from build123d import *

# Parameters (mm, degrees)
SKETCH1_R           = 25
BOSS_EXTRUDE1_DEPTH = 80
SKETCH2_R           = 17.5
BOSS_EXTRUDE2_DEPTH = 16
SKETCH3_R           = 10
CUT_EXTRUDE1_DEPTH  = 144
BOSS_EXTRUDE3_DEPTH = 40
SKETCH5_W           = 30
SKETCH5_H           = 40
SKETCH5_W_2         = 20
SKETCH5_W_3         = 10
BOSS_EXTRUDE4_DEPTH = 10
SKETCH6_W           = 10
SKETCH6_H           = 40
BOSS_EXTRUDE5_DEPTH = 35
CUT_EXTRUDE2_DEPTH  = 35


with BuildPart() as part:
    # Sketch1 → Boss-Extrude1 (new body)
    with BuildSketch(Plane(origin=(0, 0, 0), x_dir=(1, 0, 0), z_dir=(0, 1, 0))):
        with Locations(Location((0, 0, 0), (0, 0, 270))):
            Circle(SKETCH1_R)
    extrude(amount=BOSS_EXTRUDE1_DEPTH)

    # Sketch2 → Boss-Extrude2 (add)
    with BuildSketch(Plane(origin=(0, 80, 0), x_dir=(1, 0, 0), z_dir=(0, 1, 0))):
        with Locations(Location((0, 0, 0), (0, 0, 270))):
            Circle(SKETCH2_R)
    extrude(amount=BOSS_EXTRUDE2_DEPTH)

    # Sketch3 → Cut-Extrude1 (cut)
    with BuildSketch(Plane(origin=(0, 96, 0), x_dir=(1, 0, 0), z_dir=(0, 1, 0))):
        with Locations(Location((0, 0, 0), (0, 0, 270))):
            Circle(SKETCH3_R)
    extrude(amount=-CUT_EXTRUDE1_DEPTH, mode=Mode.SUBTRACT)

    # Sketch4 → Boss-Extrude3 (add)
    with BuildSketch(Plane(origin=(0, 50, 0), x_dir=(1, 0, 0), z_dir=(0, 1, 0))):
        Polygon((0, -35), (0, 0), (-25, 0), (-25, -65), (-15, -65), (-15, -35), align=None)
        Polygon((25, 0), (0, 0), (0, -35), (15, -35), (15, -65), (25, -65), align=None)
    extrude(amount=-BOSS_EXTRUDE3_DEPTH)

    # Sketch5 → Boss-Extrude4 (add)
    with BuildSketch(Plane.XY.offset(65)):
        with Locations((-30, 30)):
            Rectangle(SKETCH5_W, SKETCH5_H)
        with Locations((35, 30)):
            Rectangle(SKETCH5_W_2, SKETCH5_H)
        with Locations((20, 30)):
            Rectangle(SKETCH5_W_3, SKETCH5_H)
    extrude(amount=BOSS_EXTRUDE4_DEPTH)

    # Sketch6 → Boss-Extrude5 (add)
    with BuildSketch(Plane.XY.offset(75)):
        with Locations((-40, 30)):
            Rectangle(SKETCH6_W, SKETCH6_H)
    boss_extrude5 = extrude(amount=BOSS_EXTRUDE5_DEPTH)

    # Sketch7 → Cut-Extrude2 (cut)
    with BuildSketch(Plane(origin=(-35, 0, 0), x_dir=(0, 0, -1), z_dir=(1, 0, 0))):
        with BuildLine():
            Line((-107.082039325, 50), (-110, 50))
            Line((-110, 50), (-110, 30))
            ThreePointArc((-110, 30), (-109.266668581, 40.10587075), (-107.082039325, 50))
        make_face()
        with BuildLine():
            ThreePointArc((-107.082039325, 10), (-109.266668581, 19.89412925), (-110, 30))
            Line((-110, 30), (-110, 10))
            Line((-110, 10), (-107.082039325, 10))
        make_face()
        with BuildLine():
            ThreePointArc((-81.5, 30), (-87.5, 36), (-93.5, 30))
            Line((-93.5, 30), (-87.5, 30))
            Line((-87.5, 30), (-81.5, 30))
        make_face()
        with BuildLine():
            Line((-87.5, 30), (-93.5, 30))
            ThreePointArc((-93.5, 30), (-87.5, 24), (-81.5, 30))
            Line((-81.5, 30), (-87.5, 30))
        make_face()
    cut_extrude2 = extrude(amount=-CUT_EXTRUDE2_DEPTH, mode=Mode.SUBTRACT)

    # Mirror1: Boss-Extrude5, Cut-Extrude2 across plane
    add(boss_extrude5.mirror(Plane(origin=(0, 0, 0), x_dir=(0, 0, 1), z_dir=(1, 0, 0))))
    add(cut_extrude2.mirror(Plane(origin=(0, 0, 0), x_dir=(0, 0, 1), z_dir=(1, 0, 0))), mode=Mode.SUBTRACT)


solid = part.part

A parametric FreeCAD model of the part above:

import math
import FreeCAD as App
import Part
import Sketcher

V = App.Vector
Q = App.Units.Quantity

doc = App.newDocument("Part")
body = doc.addObject("PartDesign::Body", "Body")

# Sketch on XZ plane
sketch1 = doc.addObject("Sketcher::SketchObject", "Sketch")
body.addObject(sketch1)
sketch1.AttachmentSupport = (doc.XZ_Plane, [""])
sketch1.MapMode = "FlatFace"
sketch1.addGeometry(Part.Circle(V(0, 0, 0), V(0, 0, 1), 25), False)
sketch1.addConstraint([
    Sketcher.Constraint("Coincident", 0, 3, -1, 1),
    Sketcher.Constraint("Diameter", 0, Q("50 mm")),
])
pad1 = doc.addObject("PartDesign::Pad", "Pad")
body.addObject(pad1)
pad1.Profile = sketch1
pad1.Length = 80
pad1.Reversed = True

# Sketch on XZ plane
sketch2 = doc.addObject("Sketcher::SketchObject", "Sketch001")
body.addObject(sketch2)
sketch2.AttachmentSupport = (doc.XZ_Plane, [""])
sketch2.MapMode = "FlatFace"
sketch2.AttachmentOffset = App.Placement(V(0, 0, -80), App.Rotation())
sketch2.addGeometry(Part.Circle(V(0, 0, 0), V(0, 0, 1), 18), False)
sketch2.addConstraint([
    Sketcher.Constraint("Coincident", 0, 3, -1, 1),
    Sketcher.Constraint("Diameter", 0, Q("35 mm")),
])
pad2 = doc.addObject("PartDesign::Pad", "Pad001")
body.addObject(pad2)
pad2.Profile = sketch2
pad2.Length = 16
pad2.Reversed = True

# Sketch on XZ plane
sketch3 = doc.addObject("Sketcher::SketchObject", "Sketch002")
body.addObject(sketch3)
sketch3.AttachmentSupport = (doc.XZ_Plane, [""])
sketch3.MapMode = "FlatFace"
sketch3.AttachmentOffset = App.Placement(V(0, 0, -96), App.Rotation())
sketch3.addGeometry(Part.Circle(V(0, 0, 0), V(0, 0, 1), 10), False)
sketch3.addConstraint([
    Sketcher.Constraint("Coincident", 0, 3, -1, 1),
    Sketcher.Constraint("Diameter", 0, Q("20 mm")),
])
pocket1 = doc.addObject("PartDesign::Pocket", "Pocket")
body.addObject(pocket1)
pocket1.Profile = sketch3
pocket1.Length = 144
pocket1.Reversed = True

# Sketch on XZ plane
sketch4 = doc.addObject("Sketcher::SketchObject", "Sketch003")
body.addObject(sketch4)
sketch4.AttachmentSupport = (doc.XZ_Plane, [""])
sketch4.MapMode = "FlatFace"
sketch4.AttachmentOffset = App.Placement(V(0, 0, -50), App.Rotation())
sketch4.addGeometry([
    Part.LineSegment(V(-25, 0, 0), V(-25, 65, 0)),  # 0
    Part.LineSegment(V(-25, 65, 0), V(-15, 65, 0)),  # 1
    Part.LineSegment(V(-15, 65, 0), V(-15, 35, 0)),  # 2
    Part.LineSegment(V(-15, 35, 0), V(15, 35, 0)),  # 3
    Part.LineSegment(V(15, 35, 0), V(15, 65, 0)),  # 4
    Part.LineSegment(V(15, 65, 0), V(25, 65, 0)),  # 5
    Part.LineSegment(V(25, 65, 0), V(25, 0, 0)),  # 6
    Part.LineSegment(V(25, 0, 0), V(-25, 0, 0)),  # 7
], False)
sketch4.addConstraint([
    Sketcher.Constraint("Coincident", 0, 2, 1, 1),
    Sketcher.Constraint("Coincident", 1, 2, 2, 1),
    Sketcher.Constraint("Coincident", 2, 2, 3, 1),
    Sketcher.Constraint("Coincident", 3, 2, 4, 1),
    Sketcher.Constraint("Coincident", 4, 2, 5, 1),
    Sketcher.Constraint("Coincident", 5, 2, 6, 1),
    Sketcher.Constraint("Coincident", 6, 2, 7, 1),
    Sketcher.Constraint("Coincident", 7, 2, 0, 1),
    Sketcher.Constraint("Vertical", 0),
    Sketcher.Constraint("Horizontal", 1),
    Sketcher.Constraint("Vertical", 2),
    Sketcher.Constraint("Horizontal", 3),
    Sketcher.Constraint("Vertical", 4),
    Sketcher.Constraint("Horizontal", 5),
    Sketcher.Constraint("Vertical", 6),
    Sketcher.Constraint("Horizontal", 7),
    Sketcher.Constraint("Symmetric", 6, 2, 7, 2, -1, 1),
    Sketcher.Constraint("Symmetric", 1, 2, 4, 2, -2),
    Sketcher.Constraint("Equal", 3, 2),
    Sketcher.Constraint("DistanceX", 1, 1, 1, 2, Q("10 mm")),
    Sketcher.Constraint("DistanceX", 3, 1, 3, 2, Q("30 mm")),
    Sketcher.Constraint("DistanceY", 0, 1, 0, 2, Q("65 mm")),
])
pad3 = doc.addObject("PartDesign::Pad", "Pad002")
body.addObject(pad3)
pad3.Profile = sketch4
pad3.Length = 40

# Sketch on XY plane
sketch5 = doc.addObject("Sketcher::SketchObject", "Sketch004")
body.addObject(sketch5)
sketch5.AttachmentSupport = (doc.XY_Plane, [""])
sketch5.MapMode = "FlatFace"
sketch5.AttachmentOffset = App.Placement(V(0, 0, 65), App.Rotation())
sketch5.addGeometry([
    Part.LineSegment(V(-45, 50, 0), V(-45, 10, 0)),  # 0
    Part.LineSegment(V(-45, 10, 0), V(-15, 10, 0)),  # 1
    Part.LineSegment(V(-15, 10, 0), V(-15, 50, 0)),  # 2
    Part.LineSegment(V(-15, 50, 0), V(-45, 50, 0)),  # 3
    Part.LineSegment(V(45, 10, 0), V(45, 50, 0)),  # 4
    Part.LineSegment(V(45, 50, 0), V(15, 50, 0)),  # 5
    Part.LineSegment(V(15, 50, 0), V(15, 10, 0)),  # 6
    Part.LineSegment(V(15, 10, 0), V(45, 10, 0)),  # 7
], False)
sketch5.addConstraint([
    Sketcher.Constraint("Coincident", 0, 2, 1, 1),
    Sketcher.Constraint("Coincident", 1, 2, 2, 1),
    Sketcher.Constraint("Coincident", 2, 2, 3, 1),
    Sketcher.Constraint("Coincident", 3, 2, 0, 1),
    Sketcher.Constraint("Coincident", 4, 2, 5, 1),
    Sketcher.Constraint("Coincident", 5, 2, 6, 1),
    Sketcher.Constraint("Coincident", 6, 2, 7, 1),
    Sketcher.Constraint("Coincident", 7, 2, 4, 1),
    Sketcher.Constraint("Vertical", 0),
    Sketcher.Constraint("Horizontal", 1),
    Sketcher.Constraint("Vertical", 2),
    Sketcher.Constraint("Horizontal", 3),
    Sketcher.Constraint("Vertical", 4),
    Sketcher.Constraint("Horizontal", 5),
    Sketcher.Constraint("Vertical", 6),
    Sketcher.Constraint("Horizontal", 7),
    Sketcher.Constraint("Symmetric", 3, 2, 4, 2, -2),
    Sketcher.Constraint("Symmetric", 1, 2, 6, 2, -2),
    Sketcher.Constraint("DistanceX", 1, 1, 1, 2, Q("30 mm")),
    Sketcher.Constraint("DistanceY", 0, 2, 0, 1, Q("40 mm")),
    Sketcher.Constraint("DistanceX", 0, 2, -1, 1, Q("45 mm")),
    Sketcher.Constraint("DistanceY", -1, 1, 0, 2, Q("10 mm")),
])
pad4 = doc.addObject("PartDesign::Pad", "Pad003")
body.addObject(pad4)
pad4.Profile = sketch5
pad4.Length = 10

# Sketch on XY plane
sketch6 = doc.addObject("Sketcher::SketchObject", "Sketch005")
body.addObject(sketch6)
sketch6.AttachmentSupport = (doc.XY_Plane, [""])
sketch6.MapMode = "FlatFace"
sketch6.AttachmentOffset = App.Placement(V(0, 0, 75), App.Rotation())
sketch6.addGeometry([
    Part.LineSegment(V(-45, 50, 0), V(-45, 10, 0)),
    Part.LineSegment(V(-45, 10, 0), V(-35, 10, 0)),
    Part.LineSegment(V(-35, 10, 0), V(-35, 50, 0)),
    Part.LineSegment(V(-35, 50, 0), V(-45, 50, 0)),
], False)
sketch6.addConstraint([
    Sketcher.Constraint("Coincident", 0, 2, 1, 1),
    Sketcher.Constraint("Coincident", 1, 2, 2, 1),
    Sketcher.Constraint("Coincident", 2, 2, 3, 1),
    Sketcher.Constraint("Coincident", 3, 2, 0, 1),
    Sketcher.Constraint("Vertical", 0),
    Sketcher.Constraint("Horizontal", 1),
    Sketcher.Constraint("Vertical", 2),
    Sketcher.Constraint("Horizontal", 3),
    Sketcher.Constraint("DistanceX", 1, 1, 1, 2, Q("10 mm")),
    Sketcher.Constraint("DistanceY", 0, 2, 0, 1, Q("40 mm")),
    Sketcher.Constraint("DistanceX", 0, 2, -1, 1, Q("45 mm")),
    Sketcher.Constraint("DistanceY", -1, 1, 0, 2, Q("10 mm")),
])
pad5 = doc.addObject("PartDesign::Pad", "Pad004")
body.addObject(pad5)
pad5.Profile = sketch6
pad5.Length = 35

# Sketch on YZ plane
sketch7 = doc.addObject("Sketcher::SketchObject", "Sketch006")
body.addObject(sketch7)
sketch7.AttachmentSupport = (doc.YZ_Plane, [""])
sketch7.MapMode = "FlatFace"
sketch7.AttachmentOffset = App.Placement(V(0, 0, -35), App.Rotation())
sketch7.addGeometry([
    Part.LineSegment(V(50, 107.1, 0), V(50, 110, 0)),  # 0
    Part.LineSegment(V(50, 110, 0), V(30, 110, 0)),  # 1
    Part.ArcOfCircle(Part.Circle(V(30, 40, 0), V(0, 0, 1), 70), math.radians(73.4), math.radians(90)),  # 2
    Part.ArcOfCircle(Part.Circle(V(30, 40, 0), V(0, 0, 1), 70), math.radians(90), math.radians(106.6)),  # 3
    Part.LineSegment(V(30, 110, 0), V(10, 110, 0)),  # 4
    Part.LineSegment(V(10, 110, 0), V(10, 107.1, 0)),  # 5
    Part.Circle(V(30, 87.5, 0), V(0, 0, 1), 6),  # 6
], False)
sketch7.addConstraint([
    Sketcher.Constraint("Coincident", 0, 2, 1, 1),
    Sketcher.Constraint("Tangent", 1, 2, 2, 2),
    Sketcher.Constraint("Coincident", 2, 1, 0, 1),
    Sketcher.Constraint("Tangent", 3, 1, 4, 1),
    Sketcher.Constraint("Coincident", 4, 2, 5, 1),
    Sketcher.Constraint("Coincident", 5, 2, 3, 2),
    Sketcher.Constraint("Vertical", 0),
    Sketcher.Constraint("Horizontal", 1),
    Sketcher.Constraint("Horizontal", 4),
    Sketcher.Constraint("Vertical", 5),
    Sketcher.Constraint("Coincident", 3, 3, 2, 3),
    Sketcher.Constraint("Equal", 2, 3),
    Sketcher.Constraint("Horizontal", 2, 1, 5, 2),
    Sketcher.Constraint("Vertical", 3, 3, 6, 3),
    Sketcher.Constraint("Diameter", 6, Q("12 mm")),
    Sketcher.Constraint("Radius", 2, Q("70 mm")),
    Sketcher.Constraint("DistanceX", 1, 2, 1, 1, Q("20 mm")),
    Sketcher.Constraint("DistanceX", -1, 1, 2, 3, Q("30 mm")),
    Sketcher.Constraint("DistanceY", -1, 1, 2, 3, Q("40 mm")),
    Sketcher.Constraint("DistanceY", -1, 1, 6, 3, Q("87.5 mm")),
])
pocket2 = doc.addObject("PartDesign::Pocket", "Pocket001")
body.addObject(pocket2)
pocket2.Profile = sketch7
pocket2.Length = 35
doc.recompute()

mirrored = doc.addObject("PartDesign::Mirrored", "Mirrored")
body.addObject(mirrored)
mirrored.Originals = [pad5, pocket2]
mirrored.MirrorPlane = (doc.YZ_Plane, [""])
body.Tip = mirrored

doc.recompute()
